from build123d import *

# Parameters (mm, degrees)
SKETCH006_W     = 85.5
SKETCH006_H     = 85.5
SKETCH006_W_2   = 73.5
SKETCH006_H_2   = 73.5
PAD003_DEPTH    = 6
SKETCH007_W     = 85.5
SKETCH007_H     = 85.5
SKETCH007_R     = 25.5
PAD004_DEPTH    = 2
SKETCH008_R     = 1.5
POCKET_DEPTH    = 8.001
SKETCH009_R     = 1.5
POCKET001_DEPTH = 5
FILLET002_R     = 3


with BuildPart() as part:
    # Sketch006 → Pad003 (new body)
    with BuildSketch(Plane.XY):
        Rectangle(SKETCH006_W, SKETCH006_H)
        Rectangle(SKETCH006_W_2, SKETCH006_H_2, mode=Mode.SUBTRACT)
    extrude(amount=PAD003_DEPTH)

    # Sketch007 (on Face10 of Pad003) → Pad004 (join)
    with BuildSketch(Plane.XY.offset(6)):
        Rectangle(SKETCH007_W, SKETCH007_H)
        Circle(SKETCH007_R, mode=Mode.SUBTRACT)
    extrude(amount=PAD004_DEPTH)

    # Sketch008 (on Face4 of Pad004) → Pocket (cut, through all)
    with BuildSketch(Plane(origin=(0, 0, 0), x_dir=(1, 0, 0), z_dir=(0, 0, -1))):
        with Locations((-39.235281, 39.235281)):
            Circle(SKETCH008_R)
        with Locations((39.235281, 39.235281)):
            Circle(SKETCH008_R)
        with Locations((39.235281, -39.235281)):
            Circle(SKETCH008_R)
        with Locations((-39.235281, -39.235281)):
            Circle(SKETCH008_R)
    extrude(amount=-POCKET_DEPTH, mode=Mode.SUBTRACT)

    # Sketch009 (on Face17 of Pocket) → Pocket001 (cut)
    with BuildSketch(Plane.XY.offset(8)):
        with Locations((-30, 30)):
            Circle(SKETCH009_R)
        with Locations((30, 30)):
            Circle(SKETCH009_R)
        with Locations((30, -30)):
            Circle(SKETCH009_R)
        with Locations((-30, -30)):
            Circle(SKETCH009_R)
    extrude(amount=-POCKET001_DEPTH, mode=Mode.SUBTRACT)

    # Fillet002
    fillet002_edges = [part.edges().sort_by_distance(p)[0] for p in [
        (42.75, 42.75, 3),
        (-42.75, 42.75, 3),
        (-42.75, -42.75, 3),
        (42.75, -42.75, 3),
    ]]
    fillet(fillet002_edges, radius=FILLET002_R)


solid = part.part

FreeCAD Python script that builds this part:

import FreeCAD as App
import Part
import Sketcher


def edges_at(feature, points):
    """Names of the edges that pass closest to the given points."""
    edges = feature.Shape.Edges
    near = lambda p: min(range(len(edges)), key=lambda i: edges[i].distToShape(Part.Vertex(*p))[0])
    return sorted({f"Edge{near(p) + 1}" for p in points})

doc = App.newDocument("Part")
body = doc.addObject("PartDesign::Body", "Body")

# Sketch on XY plane
sketch1 = doc.addObject("Sketcher::SketchObject", "Sketch")
body.addObject(sketch1)
sketch1.AttachmentSupport = (doc.XY_Plane, [""])
sketch1.MapMode = "FlatFace"
sketch1.addGeometry([
    Part.LineSegment(App.Vector(-43, 43, 0), App.Vector(-43, -43, 0)),  # 0
    Part.LineSegment(App.Vector(-43, -43, 0), App.Vector(43, -43, 0)),  # 1
    Part.LineSegment(App.Vector(43, -43, 0), App.Vector(43, 43, 0)),  # 2
    Part.LineSegment(App.Vector(43, 43, 0), App.Vector(-43, 43, 0)),  # 3
    Part.LineSegment(App.Vector(37, -37, 0), App.Vector(-37, -37, 0)),  # 4
    Part.LineSegment(App.Vector(-37, -37, 0), App.Vector(-37, 37, 0)),  # 5
    Part.LineSegment(App.Vector(-37, 37, 0), App.Vector(37, 37, 0)),  # 6
    Part.LineSegment(App.Vector(37, 37, 0), App.Vector(37, -37, 0)),  # 7
], False)
sketch1.addConstraint([
    Sketcher.Constraint("Coincident", 0, 2, 1, 1),
    Sketcher.Constraint("Coincident", 1, 2, 2, 1),
    Sketcher.Constraint("Coincident", 2, 2, 3, 1),
    Sketcher.Constraint("Coincident", 3, 2, 0, 1),
    Sketcher.Constraint("Coincident", 4, 2, 5, 1),
    Sketcher.Constraint("Coincident", 5, 2, 6, 1),
    Sketcher.Constraint("Coincident", 6, 2, 7, 1),
    Sketcher.Constraint("Coincident", 7, 2, 4, 1),
    Sketcher.Constraint("Vertical", 0),
    Sketcher.Constraint("Horizontal", 1),
    Sketcher.Constraint("Vertical", 2),
    Sketcher.Constraint("Horizontal", 3),
    Sketcher.Constraint("Horizontal", 4),
    Sketcher.Constraint("Vertical", 5),
    Sketcher.Constraint("Horizontal", 6),
    Sketcher.Constraint("Vertical", 7),
    Sketcher.Constraint("Symmetric", 0, 2, 2, 2, -1, 1),
    Sketcher.Constraint("Symmetric", 4, 2, 6, 2, -1, 1),
    Sketcher.Constraint("Equal", 3, 0),
    Sketcher.Constraint("Equal", 6, 5),
    Sketcher.Constraint("DistanceX", 1, 1, 1, 2, 85.5),
    Sketcher.Constraint("DistanceX", 4, 2, 4, 1, 73.5),
])
pad1 = doc.addObject("PartDesign::Pad", "Pad")
body.addObject(pad1)
pad1.Profile = sketch1
pad1.Length = 6

# Sketch on XY plane
sketch2 = doc.addObject("Sketcher::SketchObject", "Sketch001")
body.addObject(sketch2)
sketch2.AttachmentSupport = (doc.XY_Plane, [""])
sketch2.MapMode = "FlatFace"
sketch2.AttachmentOffset = App.Placement(App.Vector(0, 0, 6), App.Rotation())
sketch2.addGeometry([
    Part.LineSegment(App.Vector(-43, 43, 0), App.Vector(-43, -43, 0)),  # 0
    Part.LineSegment(App.Vector(-43, -43, 0), App.Vector(43, -43, 0)),  # 1
    Part.LineSegment(App.Vector(43, -43, 0), App.Vector(43, 43, 0)),  # 2
    Part.LineSegment(App.Vector(43, 43, 0), App.Vector(-43, 43, 0)),  # 3
    Part.Circle(App.Vector(0, 0, 0), App.Vector(0, 0, 1), 26),  # 4
], False)
sketch2.addConstraint([
    Sketcher.Constraint("Coincident", 0, 2, 1, 1),
    Sketcher.Constraint("Coincident", 1, 2, 2, 1),
    Sketcher.Constraint("Coincident", 2, 2, 3, 1),
    Sketcher.Constraint("Coincident", 3, 2, 0, 1),
    Sketcher.Constraint("Vertical", 0),
    Sketcher.Constraint("Horizontal", 1),
    Sketcher.Constraint("Vertical", 2),
    Sketcher.Constraint("Horizontal", 3),
    Sketcher.Constraint("Coincident", 4, 3, -1, 1),
    Sketcher.Constraint("Symmetric", 0, 2, 2, 2, -1, 1),
    Sketcher.Constraint("Equal", 3, 0),
    Sketcher.Constraint("Diameter", 4, 51.0),
    Sketcher.Constraint("DistanceX", 1, 1, 1, 2, 85.5),
])
pad2 = doc.addObject("PartDesign::Pad", "Pad001")
body.addObject(pad2)
pad2.Profile = sketch2
pad2.Length = 2

# Sketch on XY plane
sketch3 = doc.addObject("Sketcher::SketchObject", "Sketch002")
body.addObject(sketch3)
sketch3.AttachmentSupport = (doc.XY_Plane, [""])
sketch3.MapMode = "FlatFace"
sketch3.addGeometry([
    Part.Circle(App.Vector(-39.2, -39.2, 0), App.Vector(0, 0, 1), 1.5),
    Part.Circle(App.Vector(39.2, -39.2, 0), App.Vector(0, 0, 1), 1.5),
    Part.Circle(App.Vector(39.2, 39.2, 0), App.Vector(0, 0, 1), 1.5),
    Part.Circle(App.Vector(-39.2, 39.2, 0), App.Vector(0, 0, 1), 1.5),
], False)
sketch3.addConstraint([
    Sketcher.Constraint("Equal", 0, 1),
    Sketcher.Constraint("Equal", 1, 2),
    Sketcher.Constraint("Equal", 2, 3),
    Sketcher.Constraint("Symmetric", 0, 3, 2, 3, -1, 1),
    Sketcher.Constraint("Symmetric", 1, 3, 3, 3, -1, 1),
    Sketcher.Constraint("Symmetric", 0, 3, 1, 3, -2),
    Sketcher.Constraint("Diameter", 0, 3.0),
    Sketcher.Constraint("DistanceX", 0, 3, -1, 1, 39.235281),
    Sketcher.Constraint("DistanceY", 0, 3, -1, 1, 39.235281),
])
pocket1 = doc.addObject("PartDesign::Pocket", "Pocket")
body.addObject(pocket1)
pocket1.Profile = sketch3
pocket1.Type = "ThroughAll"
pocket1.Reversed = True

# Sketch on XY plane
sketch4 = doc.addObject("Sketcher::SketchObject", "Sketch003")
body.addObject(sketch4)
sketch4.AttachmentSupport = (doc.XY_Plane, [""])
sketch4.MapMode = "FlatFace"
sketch4.AttachmentOffset = App.Placement(App.Vector(0, 0, 8), App.Rotation())
sketch4.addGeometry([
    Part.Circle(App.Vector(-30, 30, 0), App.Vector(0, 0, 1), 1.5),
    Part.Circle(App.Vector(30, 30, 0), App.Vector(0, 0, 1), 1.5),
    Part.Circle(App.Vector(30, -30, 0), App.Vector(0, 0, 1), 1.5),
    Part.Circle(App.Vector(-30, -30, 0), App.Vector(0, 0, 1), 1.5),
], False)
sketch4.addConstraint([
    Sketcher.Constraint("Equal", 0, 1),
    Sketcher.Constraint("Equal", 1, 2),
    Sketcher.Constraint("Equal", 2, 3),
    Sketcher.Constraint("Symmetric", 0, 3, 2, 3, -1, 1),
    Sketcher.Constraint("Symmetric", 1, 3, 3, 3, -1, 1),
    Sketcher.Constraint("Symmetric", 0, 3, 1, 3, -2),
    Sketcher.Constraint("Diameter", 0, 3.0),
    Sketcher.Constraint("DistanceX", 0, 3, -1, 1, 30.0),
    Sketcher.Constraint("DistanceY", -1, 1, 0, 3, 30.0),
])
pocket2 = doc.addObject("PartDesign::Pocket", "Pocket001")
body.addObject(pocket2)
pocket2.Profile = sketch4
pocket2.Length = 5
doc.recompute()

fillet = doc.addObject("PartDesign::Fillet", "Fillet")
body.addObject(fillet)
fillet.Base = (pocket2, edges_at(pocket2, [
    (42.75, 42.75, 4),
    (-42.75, 42.75, 4),
    (-42.75, -42.75, 4),
    (42.75, -42.75, 4),
]))
fillet.Radius = 3

doc.recompute()
